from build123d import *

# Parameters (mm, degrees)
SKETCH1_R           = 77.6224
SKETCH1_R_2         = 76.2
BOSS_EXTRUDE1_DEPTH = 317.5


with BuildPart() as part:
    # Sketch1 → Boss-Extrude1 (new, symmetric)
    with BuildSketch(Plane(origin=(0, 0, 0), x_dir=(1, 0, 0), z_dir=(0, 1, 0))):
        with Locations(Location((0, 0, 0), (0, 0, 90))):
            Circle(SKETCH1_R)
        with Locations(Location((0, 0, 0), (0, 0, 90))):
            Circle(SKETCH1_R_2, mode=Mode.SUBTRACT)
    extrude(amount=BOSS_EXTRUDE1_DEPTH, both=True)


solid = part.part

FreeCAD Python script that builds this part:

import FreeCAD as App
import Part
import Sketcher

V = App.Vector
Q = App.Units.Quantity

doc = App.newDocument("Part")
body = doc.addObject("PartDesign::Body", "Body")

sketch1 = doc.addObject("Sketcher::SketchObject", "Sketch")
body.addObject(sketch1)
sketch1.AttachmentSupport = (doc.XZ_Plane, [""])
sketch1.MapMode = "FlatFace"
sketch1.addGeometry(Part.Circle(V(0, 0, 0), V(0, 0, 1), 78), False)
sketch1.addGeometry(Part.Circle(V(0, 0, 0), V(0, 0, 1), 76), False)
sketch1.addConstraint(Sketcher.Constraint("Coincident", 0, 3, -1, 1))
sketch1.addConstraint(Sketcher.Constraint("Coincident", 1, 3, -1, 1))
sketch1.addConstraint(Sketcher.Constraint("Diameter", 1, Q("6 in")))
sketch1.addConstraint(Sketcher.Constraint("Diameter", 0, Q("6.112 in")))
pad1 = doc.addObject("PartDesign::Pad", "Pad")
body.addObject(pad1)
pad1.Profile = sketch1
pad1.Length = Q("25 in")
pad1.Midplane = True

doc.recompute()
